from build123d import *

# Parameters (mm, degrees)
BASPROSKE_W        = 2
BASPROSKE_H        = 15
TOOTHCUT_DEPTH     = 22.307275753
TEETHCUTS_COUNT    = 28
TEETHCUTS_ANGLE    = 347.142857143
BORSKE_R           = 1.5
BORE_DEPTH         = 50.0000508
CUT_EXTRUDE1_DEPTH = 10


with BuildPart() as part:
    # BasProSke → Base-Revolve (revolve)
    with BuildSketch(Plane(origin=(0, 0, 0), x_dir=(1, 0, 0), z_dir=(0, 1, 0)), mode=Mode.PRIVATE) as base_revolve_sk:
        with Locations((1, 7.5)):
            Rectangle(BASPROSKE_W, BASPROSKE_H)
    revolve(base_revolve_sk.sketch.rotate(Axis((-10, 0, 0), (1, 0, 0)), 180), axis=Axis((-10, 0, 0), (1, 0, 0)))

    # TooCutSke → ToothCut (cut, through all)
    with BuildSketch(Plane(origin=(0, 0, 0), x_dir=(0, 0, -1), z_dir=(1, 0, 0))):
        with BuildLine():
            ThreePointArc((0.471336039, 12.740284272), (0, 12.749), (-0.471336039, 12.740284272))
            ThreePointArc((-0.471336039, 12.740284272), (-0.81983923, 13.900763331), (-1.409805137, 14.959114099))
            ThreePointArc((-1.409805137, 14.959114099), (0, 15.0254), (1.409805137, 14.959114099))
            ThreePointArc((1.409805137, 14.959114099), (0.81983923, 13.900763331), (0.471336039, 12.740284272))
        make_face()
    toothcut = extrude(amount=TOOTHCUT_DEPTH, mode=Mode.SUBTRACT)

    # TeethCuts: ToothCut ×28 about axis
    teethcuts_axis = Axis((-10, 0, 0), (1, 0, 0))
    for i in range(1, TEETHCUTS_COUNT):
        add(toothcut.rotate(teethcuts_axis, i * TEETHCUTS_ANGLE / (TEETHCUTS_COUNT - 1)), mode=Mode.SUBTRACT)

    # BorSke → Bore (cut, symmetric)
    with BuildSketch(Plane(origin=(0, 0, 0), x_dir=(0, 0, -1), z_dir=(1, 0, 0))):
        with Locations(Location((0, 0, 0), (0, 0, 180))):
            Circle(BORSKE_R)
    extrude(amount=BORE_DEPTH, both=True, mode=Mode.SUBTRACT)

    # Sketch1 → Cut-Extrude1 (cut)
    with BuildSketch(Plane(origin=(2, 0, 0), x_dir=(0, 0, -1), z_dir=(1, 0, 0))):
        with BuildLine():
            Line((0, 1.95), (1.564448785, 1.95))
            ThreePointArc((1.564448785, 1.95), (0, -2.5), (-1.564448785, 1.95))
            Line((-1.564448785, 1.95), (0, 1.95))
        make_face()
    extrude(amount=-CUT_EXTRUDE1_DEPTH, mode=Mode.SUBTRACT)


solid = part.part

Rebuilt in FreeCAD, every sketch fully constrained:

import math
import FreeCAD as App
import Part
import Sketcher

V = App.Vector
Q = App.Units.Quantity


def add_polygon(sketch, points):
    """Adds a closed chain of lines whose ends are joined by coincident constraints."""
    first, n = sketch.GeometryCount, len(points)
    for a, b in zip(points, points[1:] + points[:1]):
        sketch.addGeometry(Part.LineSegment(App.Vector(*a, 0), App.Vector(*b, 0)), False)
    for i in range(n):
        sketch.addConstraint(Sketcher.Constraint("Coincident", first + i, 2, first + (i + 1) % n, 1))

doc = App.newDocument("Part")
body = doc.addObject("PartDesign::Body", "Body")

# Sketch on XZ plane
sketch1 = doc.addObject("Sketcher::SketchObject", "Sketch")
body.addObject(sketch1)
sketch1.AttachmentSupport = (doc.XZ_Plane, [""])
sketch1.MapMode = "FlatFace"
add_polygon(sketch1, [(0, -15), (0, 0), (2, 0), (2, -15)])  # lines 0-3
sketch1.addConstraint([
    Sketcher.Constraint("Vertical", 0),
    Sketcher.Constraint("Horizontal", 1),
    Sketcher.Constraint("Vertical", 2),
    Sketcher.Constraint("Horizontal", 3),
    Sketcher.Constraint("Coincident", 0, 2, -1, 1),
    Sketcher.Constraint("DistanceX", 1, 1, 1, 2, Q("2 mm")),
    Sketcher.Constraint("DistanceY", 0, 1, 0, 2, Q("15 mm")),
])
revolution = doc.addObject("PartDesign::Revolution", "Revolution")
body.addObject(revolution)
revolution.Profile = sketch1
revolution.ReferenceAxis = (sketch1, ["H_Axis"])
revolution.Angle = 360

# Sketch on YZ plane
sketch2 = doc.addObject("Sketcher::SketchObject", "Sketch001")
body.addObject(sketch2)
sketch2.AttachmentSupport = (doc.YZ_Plane, [""])
sketch2.MapMode = "FlatFace"
sketch2.addGeometry([
    Part.ArcOfCircle(Part.Circle(V(0, 0, 0), V(0, 0, 1), 12.7), math.radians(-2.12), math.radians(2.12)),
    Part.ArcOfCircle(Part.Circle(V(11.7, -6, 0), V(0, 0, 1), 5.6), math.radians(55), math.radians(79)),
    Part.ArcOfCircle(Part.Circle(V(0, 0, 0), V(0, 0, 1), 15), math.radians(-5.38), math.radians(5.38)),
    Part.ArcOfCircle(Part.Circle(V(11.7, 6, 0), V(0, 0, 1), 5.6), math.radians(-79), math.radians(-55)),
], False)
sketch2.addConstraint([
    Sketcher.Constraint("Coincident", 0, 1, 1, 2),
    Sketcher.Constraint("Coincident", 1, 1, 2, 1),
    Sketcher.Constraint("Coincident", 2, 2, 3, 2),
    Sketcher.Constraint("Coincident", 3, 1, 0, 2),
    Sketcher.Constraint("Coincident", 0, 3, -1, 1),
    Sketcher.Constraint("Coincident", 2, 3, -1, 1),
    Sketcher.Constraint("Equal", 1, 3),
    Sketcher.Constraint("Symmetric", 1, 3, 3, 3, -1),
    Sketcher.Constraint("Radius", 1, Q("5.6 mm")),
    Sketcher.Constraint("Radius", 0, Q("12.749 mm")),
    Sketcher.Constraint("Radius", 2, Q("15.0254 mm")),
    Sketcher.Constraint("DistanceY", 1, 3, -1, 1, Q("5.977478 mm")),
    Sketcher.Constraint("DistanceX", 1, 3, 0, 1, Q("1.020979 mm")),
])
pocket1 = doc.addObject("PartDesign::Pocket", "Pocket")
body.addObject(pocket1)
pocket1.Profile = sketch2
pocket1.Type = "ThroughAll"
pocket1.Reversed = True
doc.recompute()

polarpattern = doc.addObject("PartDesign::PolarPattern", "PolarPattern")
body.addObject(polarpattern)
polarpattern.Originals = [pocket1]
polarpattern.Axis = (doc.X_Axis, [""])
polarpattern.Angle = 360
polarpattern.Occurrences = 28
body.Tip = polarpattern

# Sketch on YZ plane
sketch3 = doc.addObject("Sketcher::SketchObject", "Sketch002")
body.addObject(sketch3)
sketch3.AttachmentSupport = (doc.YZ_Plane, [""])
sketch3.MapMode = "FlatFace"
sketch3.addGeometry(Part.Circle(V(0, 0, 0), V(0, 0, 1), 1.5), False)
sketch3.addConstraint([
    Sketcher.Constraint("Coincident", 0, 3, -1, 1),
    Sketcher.Constraint("Diameter", 0, Q("3 mm")),
])
pocket2 = doc.addObject("PartDesign::Pocket", "Pocket001")
body.addObject(pocket2)
pocket2.Profile = sketch3
pocket2.Length = 100.000102
pocket2.Midplane = True

# Sketch on YZ plane
sketch4 = doc.addObject("Sketcher::SketchObject", "Sketch003")
body.addObject(sketch4)
sketch4.AttachmentSupport = (doc.YZ_Plane, [""])
sketch4.MapMode = "FlatFace"
sketch4.AttachmentOffset = App.Placement(V(0, 0, 2), App.Rotation())
sketch4.addGeometry([
    Part.ArcOfCircle(Part.Circle(V(0, 0, 0), V(0, 0, 1), 2.5), math.radians(39), math.radians(321)),
    Part.LineSegment(V(1.9, -1.6, 0), V(1.9, 1.6, 0)),
], False)
sketch4.addConstraint([
    Sketcher.Constraint("Coincident", 0, 1, 1, 2),
    Sketcher.Constraint("Coincident", 1, 1, 0, 2),
    Sketcher.Constraint("Vertical", 1),
    Sketcher.Constraint("Coincident", 0, 3, -1, 1),
    Sketcher.Constraint("Radius", 0, Q("2.5 mm")),
    Sketcher.Constraint("DistanceX", -1, 1, 0, 1, Q("1.95 mm")),
])
pocket3 = doc.addObject("PartDesign::Pocket", "Pocket002")
body.addObject(pocket3)
pocket3.Profile = sketch4
pocket3.Length = 10

doc.recompute()
